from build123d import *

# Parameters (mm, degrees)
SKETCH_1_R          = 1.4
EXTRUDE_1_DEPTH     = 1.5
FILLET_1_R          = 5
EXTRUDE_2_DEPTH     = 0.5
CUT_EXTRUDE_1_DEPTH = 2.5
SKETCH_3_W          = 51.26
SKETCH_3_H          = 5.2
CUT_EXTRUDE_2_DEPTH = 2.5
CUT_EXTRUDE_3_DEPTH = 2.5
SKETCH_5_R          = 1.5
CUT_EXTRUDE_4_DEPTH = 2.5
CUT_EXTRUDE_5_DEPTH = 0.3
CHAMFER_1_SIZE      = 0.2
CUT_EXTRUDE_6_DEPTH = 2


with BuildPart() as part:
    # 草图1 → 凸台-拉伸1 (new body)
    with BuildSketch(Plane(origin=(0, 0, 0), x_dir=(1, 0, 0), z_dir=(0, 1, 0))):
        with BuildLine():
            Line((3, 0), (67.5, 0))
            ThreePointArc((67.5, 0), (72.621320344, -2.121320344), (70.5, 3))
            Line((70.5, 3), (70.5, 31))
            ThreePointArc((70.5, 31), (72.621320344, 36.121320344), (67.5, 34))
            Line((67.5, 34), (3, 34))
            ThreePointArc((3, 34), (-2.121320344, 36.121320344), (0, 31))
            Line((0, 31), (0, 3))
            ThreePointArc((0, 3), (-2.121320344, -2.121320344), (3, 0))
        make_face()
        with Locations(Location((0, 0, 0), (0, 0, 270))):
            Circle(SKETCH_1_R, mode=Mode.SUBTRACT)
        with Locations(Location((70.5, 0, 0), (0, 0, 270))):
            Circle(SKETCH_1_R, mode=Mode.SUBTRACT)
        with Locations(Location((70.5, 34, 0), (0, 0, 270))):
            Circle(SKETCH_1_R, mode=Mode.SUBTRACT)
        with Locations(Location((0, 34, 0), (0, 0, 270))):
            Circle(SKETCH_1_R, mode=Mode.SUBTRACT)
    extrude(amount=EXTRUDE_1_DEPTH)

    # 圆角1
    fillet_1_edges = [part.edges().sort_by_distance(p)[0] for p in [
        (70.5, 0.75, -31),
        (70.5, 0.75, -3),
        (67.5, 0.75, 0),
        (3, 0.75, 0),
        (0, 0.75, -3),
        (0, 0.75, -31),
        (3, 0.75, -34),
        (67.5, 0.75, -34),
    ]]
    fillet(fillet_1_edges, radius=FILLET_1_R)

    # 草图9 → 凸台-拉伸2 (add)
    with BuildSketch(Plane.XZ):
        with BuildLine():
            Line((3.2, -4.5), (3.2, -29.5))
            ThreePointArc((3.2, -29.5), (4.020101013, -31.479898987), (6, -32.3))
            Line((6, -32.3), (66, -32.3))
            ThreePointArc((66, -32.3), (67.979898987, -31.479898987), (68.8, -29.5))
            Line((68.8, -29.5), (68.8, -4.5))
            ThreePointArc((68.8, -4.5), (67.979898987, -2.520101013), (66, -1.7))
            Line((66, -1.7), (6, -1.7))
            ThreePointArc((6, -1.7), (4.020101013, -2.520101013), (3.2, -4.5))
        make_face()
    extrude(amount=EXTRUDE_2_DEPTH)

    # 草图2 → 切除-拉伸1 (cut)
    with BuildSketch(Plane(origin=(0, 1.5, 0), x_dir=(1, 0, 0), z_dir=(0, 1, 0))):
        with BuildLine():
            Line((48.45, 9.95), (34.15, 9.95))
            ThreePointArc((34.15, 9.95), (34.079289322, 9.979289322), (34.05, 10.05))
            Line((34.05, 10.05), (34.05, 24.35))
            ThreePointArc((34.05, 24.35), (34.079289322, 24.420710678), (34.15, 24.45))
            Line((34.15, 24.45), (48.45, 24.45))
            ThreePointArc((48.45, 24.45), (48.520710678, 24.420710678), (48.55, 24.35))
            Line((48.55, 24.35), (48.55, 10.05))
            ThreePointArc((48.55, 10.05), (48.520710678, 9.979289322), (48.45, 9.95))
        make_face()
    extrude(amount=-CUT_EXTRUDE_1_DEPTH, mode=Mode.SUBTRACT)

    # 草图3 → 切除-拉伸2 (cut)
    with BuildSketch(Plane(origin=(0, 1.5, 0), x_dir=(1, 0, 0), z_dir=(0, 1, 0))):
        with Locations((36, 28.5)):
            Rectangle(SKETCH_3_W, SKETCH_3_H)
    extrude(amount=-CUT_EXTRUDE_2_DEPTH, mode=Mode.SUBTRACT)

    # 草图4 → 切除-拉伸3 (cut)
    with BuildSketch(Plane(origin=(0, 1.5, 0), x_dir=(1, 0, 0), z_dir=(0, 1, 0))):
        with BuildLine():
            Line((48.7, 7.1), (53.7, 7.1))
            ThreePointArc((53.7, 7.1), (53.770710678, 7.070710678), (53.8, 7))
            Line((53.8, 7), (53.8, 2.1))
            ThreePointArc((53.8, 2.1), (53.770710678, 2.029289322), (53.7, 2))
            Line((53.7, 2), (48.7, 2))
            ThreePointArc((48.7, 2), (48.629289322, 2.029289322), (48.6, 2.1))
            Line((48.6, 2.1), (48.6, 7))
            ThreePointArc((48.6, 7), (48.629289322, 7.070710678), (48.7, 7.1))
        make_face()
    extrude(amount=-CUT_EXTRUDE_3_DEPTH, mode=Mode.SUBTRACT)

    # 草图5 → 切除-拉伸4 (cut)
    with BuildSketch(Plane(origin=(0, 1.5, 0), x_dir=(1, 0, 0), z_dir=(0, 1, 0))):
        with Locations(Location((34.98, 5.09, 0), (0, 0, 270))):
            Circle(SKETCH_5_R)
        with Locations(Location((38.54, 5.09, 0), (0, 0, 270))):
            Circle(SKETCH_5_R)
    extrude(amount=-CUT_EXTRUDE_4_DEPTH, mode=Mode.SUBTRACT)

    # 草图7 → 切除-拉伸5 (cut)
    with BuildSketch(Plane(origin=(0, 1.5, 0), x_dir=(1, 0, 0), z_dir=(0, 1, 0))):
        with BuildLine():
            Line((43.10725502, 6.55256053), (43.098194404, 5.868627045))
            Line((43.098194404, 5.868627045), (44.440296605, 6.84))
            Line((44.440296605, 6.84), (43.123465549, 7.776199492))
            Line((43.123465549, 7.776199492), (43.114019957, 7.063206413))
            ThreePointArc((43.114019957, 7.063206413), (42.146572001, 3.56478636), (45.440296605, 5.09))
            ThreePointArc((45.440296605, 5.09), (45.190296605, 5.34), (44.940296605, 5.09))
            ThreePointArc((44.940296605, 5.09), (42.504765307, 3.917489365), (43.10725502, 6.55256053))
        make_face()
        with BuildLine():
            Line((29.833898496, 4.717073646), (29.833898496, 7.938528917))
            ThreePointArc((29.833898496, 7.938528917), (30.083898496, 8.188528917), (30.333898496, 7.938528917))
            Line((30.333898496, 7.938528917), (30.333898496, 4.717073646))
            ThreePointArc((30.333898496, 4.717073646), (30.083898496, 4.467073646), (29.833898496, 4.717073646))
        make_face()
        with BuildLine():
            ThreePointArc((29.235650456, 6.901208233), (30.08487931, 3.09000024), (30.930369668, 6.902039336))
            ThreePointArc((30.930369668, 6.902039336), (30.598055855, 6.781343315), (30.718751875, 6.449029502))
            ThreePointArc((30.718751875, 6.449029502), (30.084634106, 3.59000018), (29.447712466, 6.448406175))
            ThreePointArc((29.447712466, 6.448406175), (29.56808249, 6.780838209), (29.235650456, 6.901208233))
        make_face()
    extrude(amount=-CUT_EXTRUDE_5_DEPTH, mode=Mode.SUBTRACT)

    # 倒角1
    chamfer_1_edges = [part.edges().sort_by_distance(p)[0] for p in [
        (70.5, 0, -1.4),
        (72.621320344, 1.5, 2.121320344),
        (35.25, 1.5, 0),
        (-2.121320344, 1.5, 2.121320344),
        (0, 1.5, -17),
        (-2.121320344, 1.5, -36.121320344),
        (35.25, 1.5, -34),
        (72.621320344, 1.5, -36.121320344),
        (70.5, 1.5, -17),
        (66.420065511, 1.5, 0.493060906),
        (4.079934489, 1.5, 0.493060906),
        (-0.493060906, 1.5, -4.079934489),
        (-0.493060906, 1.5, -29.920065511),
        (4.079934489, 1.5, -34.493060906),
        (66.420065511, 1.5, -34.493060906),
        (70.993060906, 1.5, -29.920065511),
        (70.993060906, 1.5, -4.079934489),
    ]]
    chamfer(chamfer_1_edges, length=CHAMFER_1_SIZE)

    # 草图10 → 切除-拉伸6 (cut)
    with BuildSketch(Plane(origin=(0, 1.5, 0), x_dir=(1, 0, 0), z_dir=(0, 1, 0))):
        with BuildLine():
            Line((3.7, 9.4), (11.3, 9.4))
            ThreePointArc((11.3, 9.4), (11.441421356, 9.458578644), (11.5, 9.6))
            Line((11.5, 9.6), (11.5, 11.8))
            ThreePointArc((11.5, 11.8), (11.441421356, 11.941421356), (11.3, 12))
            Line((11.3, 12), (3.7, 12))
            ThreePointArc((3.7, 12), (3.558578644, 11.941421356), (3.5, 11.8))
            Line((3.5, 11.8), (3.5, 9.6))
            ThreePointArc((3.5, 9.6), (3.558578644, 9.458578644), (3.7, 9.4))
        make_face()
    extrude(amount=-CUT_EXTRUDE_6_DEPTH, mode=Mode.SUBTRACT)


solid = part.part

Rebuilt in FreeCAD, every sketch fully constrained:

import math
import FreeCAD as App
import Part
import Sketcher

V = App.Vector
Q = App.Units.Quantity


def edges_at(feature, points):
    """Names of the edges that pass closest to the given points."""
    edges = feature.Shape.Edges
    near = lambda p: min(range(len(edges)), key=lambda i: edges[i].distToShape(Part.Vertex(*p))[0])
    return sorted({f"Edge{near(p) + 1}" for p in points})


def add_polygon(sketch, points):
    """Adds a closed chain of lines whose ends are joined by coincident constraints."""
    first, n = sketch.GeometryCount, len(points)
    for a, b in zip(points, points[1:] + points[:1]):
        sketch.addGeometry(Part.LineSegment(App.Vector(*a, 0), App.Vector(*b, 0)), False)
    for i in range(n):
        sketch.addConstraint(Sketcher.Constraint("Coincident", first + i, 2, first + (i + 1) % n, 1))

doc = App.newDocument("Part")
params = doc.addObject("Spreadsheet::Sheet", "Params")
for row, (alias, value) in enumerate([
    ("sketch1_radius", "3 mm"),
    ("sketch1_diameter", "2.8 mm"),
    ("sketch1_height", "28 mm"),
    ("sketch1_width", "64.5 mm"),
    ("pad1_length", "1.5 mm"),
    ("fillet_radius", "5 mm"),
    ("sketch2_radius", "2.8 mm"),
    ("sketch2_width", "60 mm"),
    ("sketch2_height", "25 mm"),
    ("pad2_length", "0.5 mm"),
    ("sketch3_radius", "0.1 mm"),
    ("sketch3_width", "14.3 mm"),
    ("pocket1_length", "2.5 mm"),
    ("sketch4_height", "5.2 mm"),
    ("sketch4_width", "51.26 mm"),
    ("pocket2_length", "2.5 mm"),
    ("sketch5_radius", "0.1 mm"),
    ("sketch5_width", "5 mm"),
    ("sketch5_height", "4.9 mm"),
    ("pocket3_length", "2.5 mm"),
    ("sketch6_diameter", "3 mm"),
    ("pocket4_length", "2.5 mm"),
    ("sketch7_radius", "2 mm"),
    ("sketch7_radius2", "2 mm"),
    ("sketch7_radius3", "1.5 mm"),
    ("sketch7_radius4", "1.5 mm"),
    ("sketch7_radius5", "0.25 mm"),
    ("pocket5_length", "0.3 mm"),
    ("chamfer_size", "0.2 mm"),
    ("sketch8_radius", "0.2 mm"),
    ("sketch8_width", "7.6 mm"),
    ("sketch8_height", "2.2 mm"),
    ("pocket6_length", "2 mm"),
], start=1):
    params.set(f"A{row}", alias)
    params.set(f"B{row}", "=" + value)
    params.setAlias(f"B{row}", alias)

body = doc.addObject("PartDesign::Body", "Body")

# Sketch on XZ plane
sketch1 = doc.addObject("Sketcher::SketchObject", "Sketch")
body.addObject(sketch1)
sketch1.AttachmentSupport = (doc.XZ_Plane, [""])
sketch1.MapMode = "FlatFace"
sketch1.addGeometry(Part.LineSegment(V(3, 0, 0), V(67.5, 0, 0)), False)
sketch1.addGeometry(Part.ArcOfCircle(Part.Circle(V(70.5, 0, 0), V(0, 0, 1), 3), math.radians(-90), math.radians(180)), False)
sketch1.addGeometry(Part.LineSegment(V(70.5, -3, 0), V(70.5, -31, 0)), False)
sketch1.addGeometry(Part.ArcOfCircle(Part.Circle(V(70.5, -34, 0), V(0, 0, 1), 3), math.radians(180), math.radians(450)), False)
sketch1.addGeometry(Part.LineSegment(V(67.5, -34, 0), V(3, -34, 0)), False)
sketch1.addGeometry(Part.ArcOfCircle(Part.Circle(V(0, -34, 0), V(0, 0, 1), 3), math.radians(90), math.radians(360)), False)
sketch1.addGeometry(Part.LineSegment(V(0, -31, 0), V(0, -3, 0)), False)
sketch1.addGeometry(Part.ArcOfCircle(Part.Circle(V(0, 0, 0), V(0, 0, 1), 3), math.radians(0), math.radians(270)), False)
sketch1.addGeometry(Part.Circle(V(0, 0, 0), V(0, 0, 1), 1.4), False)
sketch1.addGeometry(Part.Circle(V(70.5, 0, 0), V(0, 0, 1), 1.4), False)
sketch1.addGeometry(Part.Circle(V(0, -34, 0), V(0, 0, 1), 1.4), False)
sketch1.addGeometry(Part.Circle(V(70.5, -34, 0), V(0, 0, 1), 1.4), False)
sketch1.addConstraint(Sketcher.Constraint("Coincident", 0, 2, 1, 2))
sketch1.addConstraint(Sketcher.Constraint("Coincident", 1, 1, 2, 1))
sketch1.addConstraint(Sketcher.Constraint("Coincident", 2, 2, 3, 2))
sketch1.addConstraint(Sketcher.Constraint("Coincident", 3, 1, 4, 1))
sketch1.addConstraint(Sketcher.Constraint("Coincident", 4, 2, 5, 2))
sketch1.addConstraint(Sketcher.Constraint("Coincident", 5, 1, 6, 1))
sketch1.addConstraint(Sketcher.Constraint("Coincident", 6, 2, 7, 2))
sketch1.addConstraint(Sketcher.Constraint("Coincident", 7, 1, 0, 1))
sketch1.addConstraint(Sketcher.Constraint("Horizontal", 0))
sketch1.addConstraint(Sketcher.Constraint("Vertical", 2))
sketch1.addConstraint(Sketcher.Constraint("Horizontal", 4))
sketch1.addConstraint(Sketcher.Constraint("Vertical", 6))
sketch1.addConstraint(Sketcher.Constraint("Coincident", 7, 3, -1, 1))
sketch1.addConstraint(Sketcher.Constraint("Coincident", 8, 3, -1, 1))
sketch1.addConstraint(Sketcher.Constraint("Coincident", 9, 3, 1, 3))
sketch1.addConstraint(Sketcher.Constraint("Coincident", 10, 3, 5, 3))
sketch1.addConstraint(Sketcher.Constraint("Coincident", 11, 3, 3, 3))
sketch1.addConstraint(Sketcher.Constraint("Equal", 1, 3))
sketch1.addConstraint(Sketcher.Constraint("Equal", 3, 5))
sketch1.addConstraint(Sketcher.Constraint("Equal", 5, 7))
sketch1.addConstraint(Sketcher.Constraint("Equal", 8, 9))
sketch1.addConstraint(Sketcher.Constraint("Equal", 9, 10))
sketch1.addConstraint(Sketcher.Constraint("Equal", 10, 11))
sketch1.addConstraint(Sketcher.Constraint("PointOnObject", 1, 3, -1))
sketch1.addConstraint(Sketcher.Constraint("PointOnObject", 5, 3, -2))
sketch1.addConstraint(Sketcher.Constraint("PointOnObject", 0, 2, -1))
sketch1.addConstraint(Sketcher.Constraint("PointOnObject", 5, 1, -2))
sketch1.addConstraint(Sketcher.Constraint("Horizontal", 3, 3, 5, 3))
sketch1.addConstraint(Sketcher.Constraint("Horizontal", 11, 3, 3, 1))
sketch1.addConstraint(Sketcher.Constraint("Vertical", 1, 3, 3, 3))
sketch1.addConstraint(Sketcher.Constraint("Vertical", 11, 3, 1, 1))
sketch1.addConstraint(Sketcher.Constraint("Radius", 1, Q("3 mm")))
sketch1.addConstraint(Sketcher.Constraint("Diameter", 8, Q("2.8 mm")))
sketch1.addConstraint(Sketcher.Constraint("DistanceY", 2, 2, 2, 1, Q("28 mm")))
sketch1.addConstraint(Sketcher.Constraint("DistanceX", 0, 1, 0, 2, Q("64.5 mm")))
sketch1.setExpression("Constraints[31]", "Params.sketch1_radius")
sketch1.setExpression("Constraints[32]", "Params.sketch1_diameter")
sketch1.setExpression("Constraints[33]", "Params.sketch1_height")
sketch1.setExpression("Constraints[34]", "Params.sketch1_width")
pad1 = doc.addObject("PartDesign::Pad", "Pad")
body.addObject(pad1)
pad1.Profile = sketch1
pad1.setExpression("Length", "Params.pad1_length")
pad1.Reversed = True
doc.recompute()

fillet = doc.addObject("PartDesign::Fillet", "Fillet")
body.addObject(fillet)
fillet.Base = (pad1, edges_at(pad1, [
    (70.5, 0.75, -31),
    (70.5, 0.75, -3),
    (67.5, 0.75, 0),
    (3, 0.75, 0),
    (0, 0.75, -3),
    (0, 0.75, -31),
    (3, 0.75, -34),
    (67.5, 0.75, -34),
]))
fillet.setExpression("Radius", "Params.fillet_radius")

# Sketch on XZ plane
sketch2 = doc.addObject("Sketcher::SketchObject", "Sketch001")
body.addObject(sketch2)
sketch2.AttachmentSupport = (doc.XZ_Plane, [""])
sketch2.MapMode = "FlatFace"
sketch2.addGeometry(Part.LineSegment(V(3.2, -4.5, 0), V(3.2, -29.5, 0)), False)
sketch2.addGeometry(Part.ArcOfCircle(Part.Circle(V(6, -29.5, 0), V(0, 0, 1), 2.8), math.radians(-180), math.radians(-90)), False)
sketch2.addGeometry(Part.LineSegment(V(6, -32.3, 0), V(66, -32.3, 0)), False)
sketch2.addGeometry(Part.ArcOfCircle(Part.Circle(V(66, -29.5, 0), V(0, 0, 1), 2.8), math.radians(-90), math.radians(0)), False)
sketch2.addGeometry(Part.LineSegment(V(68.8, -29.5, 0), V(68.8, -4.5, 0)), False)
sketch2.addGeometry(Part.ArcOfCircle(Part.Circle(V(66, -4.5, 0), V(0, 0, 1), 2.8), math.radians(0), math.radians(90)), False)
sketch2.addGeometry(Part.LineSegment(V(66, -1.7, 0), V(6, -1.7, 0)), False)
sketch2.addGeometry(Part.ArcOfCircle(Part.Circle(V(6, -4.5, 0), V(0, 0, 1), 2.8), math.radians(90), math.radians(180)), False)
sketch2.addConstraint(Sketcher.Constraint("Tangent", 0, 2, 1, 1))
sketch2.addConstraint(Sketcher.Constraint("Tangent", 1, 2, 2, 1))
sketch2.addConstraint(Sketcher.Constraint("Tangent", 2, 2, 3, 1))
sketch2.addConstraint(Sketcher.Constraint("Tangent", 3, 2, 4, 1))
sketch2.addConstraint(Sketcher.Constraint("Tangent", 4, 2, 5, 1))
sketch2.addConstraint(Sketcher.Constraint("Tangent", 5, 2, 6, 1))
sketch2.addConstraint(Sketcher.Constraint("Tangent", 6, 2, 7, 1))
sketch2.addConstraint(Sketcher.Constraint("Tangent", 7, 2, 0, 1))
sketch2.addConstraint(Sketcher.Constraint("Vertical", 0))
sketch2.addConstraint(Sketcher.Constraint("Horizontal", 2))
sketch2.addConstraint(Sketcher.Constraint("Vertical", 4))
sketch2.addConstraint(Sketcher.Constraint("Horizontal", 6))
sketch2.addConstraint(Sketcher.Constraint("Equal", 1, 3))
sketch2.addConstraint(Sketcher.Constraint("Equal", 3, 5))
sketch2.addConstraint(Sketcher.Constraint("Equal", 5, 7))
sketch2.addConstraint(Sketcher.Constraint("Radius", 1, Q("2.8 mm")))
sketch2.addConstraint(Sketcher.Constraint("DistanceX", 2, 1, 2, 2, Q("60 mm")))
sketch2.addConstraint(Sketcher.Constraint("DistanceY", 0, 2, 0, 1, Q("25 mm")))
sketch2.addConstraint(Sketcher.Constraint("DistanceX", -1, 1, 1, 3, Q("6 mm")))
sketch2.addConstraint(Sketcher.Constraint("DistanceY", 1, 3, -1, 1, Q("29.5 mm")))
sketch2.setExpression("Constraints[15]", "Params.sketch2_radius")
sketch2.setExpression("Constraints[16]", "Params.sketch2_width")
sketch2.setExpression("Constraints[17]", "Params.sketch2_height")
pad2 = doc.addObject("PartDesign::Pad", "Pad001")
body.addObject(pad2)
pad2.Profile = sketch2
pad2.setExpression("Length", "Params.pad2_length")

# Sketch on XZ plane
sketch3 = doc.addObject("Sketcher::SketchObject", "Sketch002")
body.addObject(sketch3)
sketch3.AttachmentSupport = (doc.XZ_Plane, [""])
sketch3.MapMode = "FlatFace"
sketch3.AttachmentOffset = App.Placement(V(0, 0, -1.5), App.Rotation())
sketch3.addGeometry(Part.LineSegment(V(34.15, -9.95, 0), V(48.45, -9.95, 0)), False)
sketch3.addGeometry(Part.ArcOfCircle(Part.Circle(V(48.45, -10.05, 0), V(0, 0, 1), 0.1), math.radians(0), math.radians(90)), False)
sketch3.addGeometry(Part.LineSegment(V(48.55, -10.05, 0), V(48.55, -24.35, 0)), False)
sketch3.addGeometry(Part.ArcOfCircle(Part.Circle(V(48.45, -24.35, 0), V(0, 0, 1), 0.1), math.radians(-90), math.radians(0)), False)
sketch3.addGeometry(Part.LineSegment(V(48.45, -24.45, 0), V(34.15, -24.45, 0)), False)
sketch3.addGeometry(Part.ArcOfCircle(Part.Circle(V(34.15, -24.35, 0), V(0, 0, 1), 0.1), math.radians(180), math.radians(270)), False)
sketch3.addGeometry(Part.LineSegment(V(34.05, -24.35, 0), V(34.05, -10.05, 0)), False)
sketch3.addGeometry(Part.ArcOfCircle(Part.Circle(V(34.15, -10.05, 0), V(0, 0, 1), 0.1), math.radians(90), math.radians(180)), False)
sketch3.addConstraint(Sketcher.Constraint("Tangent", 0, 2, 1, 2))
sketch3.addConstraint(Sketcher.Constraint("Tangent", 1, 1, 2, 1))
sketch3.addConstraint(Sketcher.Constraint("Tangent", 2, 2, 3, 2))
sketch3.addConstraint(Sketcher.Constraint("Tangent", 3, 1, 4, 1))
sketch3.addConstraint(Sketcher.Constraint("Tangent", 4, 2, 5, 2))
sketch3.addConstraint(Sketcher.Constraint("Tangent", 5, 1, 6, 1))
sketch3.addConstraint(Sketcher.Constraint("Tangent", 6, 2, 7, 2))
sketch3.addConstraint(Sketcher.Constraint("Tangent", 7, 1, 0, 1))
sketch3.addConstraint(Sketcher.Constraint("Horizontal", 0))
sketch3.addConstraint(Sketcher.Constraint("Vertical", 2))
sketch3.addConstraint(Sketcher.Constraint("Horizontal", 4))
sketch3.addConstraint(Sketcher.Constraint("Vertical", 6))
sketch3.addConstraint(Sketcher.Constraint("Equal", 1, 3))
sketch3.addConstraint(Sketcher.Constraint("Equal", 3, 5))
sketch3.addConstraint(Sketcher.Constraint("Equal", 5, 7))
sketch3.addConstraint(Sketcher.Constraint("Equal", 4, 2))
sketch3.addConstraint(Sketcher.Constraint("Radius", 1, Q("0.1 mm")))
sketch3.addConstraint(Sketcher.Constraint("DistanceX", 0, 1, 0, 2, Q("14.3 mm")))
sketch3.addConstraint(Sketcher.Constraint("DistanceX", -1, 1, 1, 3, Q("48.45 mm")))
sketch3.addConstraint(Sketcher.Constraint("DistanceY", 1, 3, -1, 1, Q("10.05 mm")))
sketch3.setExpression("Constraints[16]", "Params.sketch3_radius")
sketch3.setExpression("Constraints[17]", "Params.sketch3_width")
pocket1 = doc.addObject("PartDesign::Pocket", "Pocket")
body.addObject(pocket1)
pocket1.Profile = sketch3
pocket1.setExpression("Length", "Params.pocket1_length")
pocket1.Reversed = True

# Sketch on XZ plane
sketch4 = doc.addObject("Sketcher::SketchObject", "Sketch003")
body.addObject(sketch4)
sketch4.AttachmentSupport = (doc.XZ_Plane, [""])
sketch4.MapMode = "FlatFace"
sketch4.AttachmentOffset = App.Placement(V(0, 0, -1.5), App.Rotation())
add_polygon(sketch4, [(10, -31), (10, -26), (62, -26), (62, -31)])  # lines 0-3
sketch4.addConstraint(Sketcher.Constraint("Vertical", 0))
sketch4.addConstraint(Sketcher.Constraint("Horizontal", 1))
sketch4.addConstraint(Sketcher.Constraint("Vertical", 2))
sketch4.addConstraint(Sketcher.Constraint("Horizontal", 3))
sketch4.addConstraint(Sketcher.Constraint("DistanceY", 0, 1, 0, 2, Q("5.2 mm")))
sketch4.addConstraint(Sketcher.Constraint("DistanceX", 1, 1, 1, 2, Q("51.26 mm")))
sketch4.addConstraint(Sketcher.Constraint("DistanceY", 0, 2, -1, 1, Q("25.9 mm")))
sketch4.addConstraint(Sketcher.Constraint("DistanceX", -1, 1, 0, 2, Q("10.37 mm")))
sketch4.setExpression("Constraints[8]", "Params.sketch4_height")
sketch4.setExpression("Constraints[9]", "Params.sketch4_width")
pocket2 = doc.addObject("PartDesign::Pocket", "Pocket001")
body.addObject(pocket2)
pocket2.Profile = sketch4
pocket2.setExpression("Length", "Params.pocket2_length")
pocket2.Reversed = True

# Sketch on XZ plane
sketch5 = doc.addObject("Sketcher::SketchObject", "Sketch004")
body.addObject(sketch5)
sketch5.AttachmentSupport = (doc.XZ_Plane, [""])
sketch5.MapMode = "FlatFace"
sketch5.AttachmentOffset = App.Placement(V(0, 0, -1.5), App.Rotation())
sketch5.addGeometry(Part.LineSegment(V(53.7, -7.1, 0), V(48.7, -7.1, 0)), False)
sketch5.addGeometry(Part.ArcOfCircle(Part.Circle(V(48.7, -7, 0), V(0, 0, 1), 0.1), math.radians(180), math.radians(270)), False)
sketch5.addGeometry(Part.LineSegment(V(48.6, -7, 0), V(48.6, -2.1, 0)), False)
sketch5.addGeometry(Part.ArcOfCircle(Part.Circle(V(48.7, -2.1, 0), V(0, 0, 1), 0.1), math.radians(90), math.radians(180)), False)
sketch5.addGeometry(Part.LineSegment(V(48.7, -2, 0), V(53.7, -2, 0)), False)
sketch5.addGeometry(Part.ArcOfCircle(Part.Circle(V(53.7, -2.1, 0), V(0, 0, 1), 0.1), math.radians(0), math.radians(90)), False)
sketch5.addGeometry(Part.LineSegment(V(53.8, -2.1, 0), V(53.8, -7, 0)), False)
sketch5.addGeometry(Part.ArcOfCircle(Part.Circle(V(53.7, -7, 0), V(0, 0, 1), 0.1), math.radians(-90), math.radians(0)), False)
sketch5.addConstraint(Sketcher.Constraint("Tangent", 0, 2, 1, 2))
sketch5.addConstraint(Sketcher.Constraint("Tangent", 1, 1, 2, 1))
sketch5.addConstraint(Sketcher.Constraint("Tangent", 2, 2, 3, 2))
sketch5.addConstraint(Sketcher.Constraint("Tangent", 3, 1, 4, 1))
sketch5.addConstraint(Sketcher.Constraint("Tangent", 4, 2, 5, 2))
sketch5.addConstraint(Sketcher.Constraint("Tangent", 5, 1, 6, 1))
sketch5.addConstraint(Sketcher.Constraint("Tangent", 6, 2, 7, 2))
sketch5.addConstraint(Sketcher.Constraint("Tangent", 7, 1, 0, 1))
sketch5.addConstraint(Sketcher.Constraint("Horizontal", 0))
sketch5.addConstraint(Sketcher.Constraint("Vertical", 2))
sketch5.addConstraint(Sketcher.Constraint("Horizontal", 4))
sketch5.addConstraint(Sketcher.Constraint("Vertical", 6))
sketch5.addConstraint(Sketcher.Constraint("Equal", 1, 3))
sketch5.addConstraint(Sketcher.Constraint("Equal", 3, 5))
sketch5.addConstraint(Sketcher.Constraint("Equal", 5, 7))
sketch5.addConstraint(Sketcher.Constraint("Radius", 1, Q("0.1 mm")))
sketch5.addConstraint(Sketcher.Constraint("DistanceX", 0, 2, 0, 1, Q("5 mm")))
sketch5.addConstraint(Sketcher.Constraint("DistanceY", 2, 1, 2, 2, Q("4.9 mm")))
sketch5.addConstraint(Sketcher.Constraint("DistanceY", 1, 3, -1, 1, Q("7 mm")))
sketch5.addConstraint(Sketcher.Constraint("DistanceX", -1, 1, 1, 3, Q("48.7 mm")))
sketch5.setExpression("Constraints[15]", "Params.sketch5_radius")
sketch5.setExpression("Constraints[16]", "Params.sketch5_width")
sketch5.setExpression("Constraints[17]", "Params.sketch5_height")
pocket3 = doc.addObject("PartDesign::Pocket", "Pocket002")
body.addObject(pocket3)
pocket3.Profile = sketch5
pocket3.setExpression("Length", "Params.pocket3_length")
pocket3.Reversed = True

# Sketch on XZ plane
sketch6 = doc.addObject("Sketcher::SketchObject", "Sketch005")
body.addObject(sketch6)
sketch6.AttachmentSupport = (doc.XZ_Plane, [""])
sketch6.MapMode = "FlatFace"
sketch6.AttachmentOffset = App.Placement(V(0, 0, -1.5), App.Rotation())
sketch6.addGeometry(Part.Circle(V(35, -5.1, 0), V(0, 0, 1), 1.5), False)
sketch6.addGeometry(Part.Circle(V(38.5, -5.1, 0), V(0, 0, 1), 1.5), False)
sketch6.addConstraint(Sketcher.Constraint("Equal", 0, 1))
sketch6.addConstraint(Sketcher.Constraint("Horizontal", 0, 3, 1, 3))
sketch6.addConstraint(Sketcher.Constraint("Diameter", 0, Q("3 mm")))
sketch6.addConstraint(Sketcher.Constraint("DistanceX", -1, 1, 0, 3, Q("34.98 mm")))
sketch6.addConstraint(Sketcher.Constraint("DistanceY", 0, 3, -1, 1, Q("5.09 mm")))
sketch6.addConstraint(Sketcher.Constraint("DistanceX", -1, 1, 1, 3, Q("38.54 mm")))
sketch6.setExpression("Constraints[2]", "Params.sketch6_diameter")
pocket4 = doc.addObject("PartDesign::Pocket", "Pocket003")
body.addObject(pocket4)
pocket4.Profile = sketch6
pocket4.setExpression("Length", "Params.pocket4_length")
pocket4.Reversed = True

# Sketch on XZ plane
sketch7 = doc.addObject("Sketcher::SketchObject", "Sketch006")
body.addObject(sketch7)
sketch7.AttachmentSupport = (doc.XZ_Plane, [""])
sketch7.MapMode = "FlatFace"
sketch7.AttachmentOffset = App.Placement(V(0, 0, -1.5), App.Rotation())
sketch7.addGeometry(Part.LineSegment(V(43.107255, -6.552561, 0), V(43.098194, -5.868627, 0)), False)
sketch7.addGeometry(Part.LineSegment(V(43.098194, -5.868627, 0), V(44.440297, -6.84, 0)), False)
sketch7.addGeometry(Part.LineSegment(V(44.440297, -6.84, 0), V(43.123466, -7.776199, 0)), False)
sketch7.addGeometry(Part.LineSegment(V(43.123466, -7.776199, 0), V(43.11402, -7.063206, 0)), False)
sketch7.addGeometry(Part.ArcOfCircle(Part.Circle(V(43.440297, -5.09, 0), V(0, 0, 1), 2), math.radians(0), math.radians(260.610897)), False)
sketch7.addGeometry(Part.ArcOfCircle(Part.Circle(V(45.190297, -5.09, 0), V(0, 0, 1), 0.25), math.radians(180), math.radians(360)), False)
sketch7.addGeometry(Part.ArcOfCircle(Part.Circle(V(43.440297, -5.09, 0), V(0, 0, 1), 1.5), math.radians(0), math.radians(257.171841)), False)
sketch7.addGeometry(Part.LineSegment(V(29.833898, -7.938529, 0), V(29.833898, -4.717074, 0)), False)
sketch7.addGeometry(Part.ArcOfCircle(Part.Circle(V(30.083898, -4.717074, 0), V(0, 0, 1), 0.25), math.radians(0), math.radians(180)), False)
sketch7.addGeometry(Part.LineSegment(V(30.333898, -4.717074, 0), V(30.333898, -7.938529, 0)), False)
sketch7.addGeometry(Part.ArcOfCircle(Part.Circle(V(30.083898, -7.938529, 0), V(0, 0, 1), 0.25), math.radians(180), math.radians(360)), False)
sketch7.addGeometry(Part.ArcOfCircle(Part.Circle(V(30.083898, -5.09, 0), V(0, 0, 1), 2), math.radians(-64.960967), math.radians(244.904771)), False)
sketch7.addGeometry(Part.ArcOfCircle(Part.Circle(V(30.824561, -6.675534, 0), V(0, 0, 1), 0.25), math.radians(115.039033), math.radians(295.039033)), False)
sketch7.addGeometry(Part.ArcOfCircle(Part.Circle(V(30.083898, -5.09, 0), V(0, 0, 1), 1.5), math.radians(-64.960967), math.radians(244.904771)), False)
sketch7.addGeometry(Part.ArcOfCircle(Part.Circle(V(29.341681, -6.674807, 0), V(0, 0, 1), 0.25), math.radians(-115.095229), math.radians(64.904771)), False)
sketch7.addConstraint(Sketcher.Constraint("Coincident", 0, 2, 1, 1))
sketch7.addConstraint(Sketcher.Constraint("Coincident", 1, 2, 2, 1))
sketch7.addConstraint(Sketcher.Constraint("Coincident", 2, 2, 3, 1))
sketch7.addConstraint(Sketcher.Constraint("Coincident", 3, 2, 4, 2))
sketch7.addConstraint(Sketcher.Constraint("Coincident", 4, 1, 5, 2))
sketch7.addConstraint(Sketcher.Constraint("Coincident", 5, 1, 6, 1))
sketch7.addConstraint(Sketcher.Constraint("Coincident", 6, 2, 0, 1))
sketch7.addConstraint(Sketcher.Constraint("Coincident", 7, 2, 8, 2))
sketch7.addConstraint(Sketcher.Constraint("Coincident", 8, 1, 9, 1))
sketch7.addConstraint(Sketcher.Constraint("Coincident", 9, 2, 10, 2))
sketch7.addConstraint(Sketcher.Constraint("Coincident", 10, 1, 7, 1))
sketch7.addConstraint(Sketcher.Constraint("Coincident", 11, 1, 12, 2))
sketch7.addConstraint(Sketcher.Constraint("Coincident", 12, 1, 13, 1))
sketch7.addConstraint(Sketcher.Constraint("Coincident", 13, 2, 14, 2))
sketch7.addConstraint(Sketcher.Constraint("Coincident", 14, 1, 11, 2))
sketch7.addConstraint(Sketcher.Constraint("Vertical", 7))
sketch7.addConstraint(Sketcher.Constraint("Vertical", 9))
sketch7.addConstraint(Sketcher.Constraint("Coincident", 6, 3, 4, 3))
sketch7.addConstraint(Sketcher.Constraint("Coincident", 13, 3, 11, 3))
sketch7.addConstraint(Sketcher.Constraint("Radius", 4, Q("2 mm")))
sketch7.addConstraint(Sketcher.Constraint("Radius", 11, Q("2 mm")))
sketch7.addConstraint(Sketcher.Constraint("Radius", 6, Q("1.5 mm")))
sketch7.addConstraint(Sketcher.Constraint("Radius", 13, Q("1.5 mm")))
sketch7.addConstraint(Sketcher.Constraint("Radius", 8, Q("0.25 mm")))
sketch7.addConstraint(Sketcher.Constraint("DistanceX", 4, 3, 1, 2, Q("1 mm")))
sketch7.addConstraint(Sketcher.Constraint("DistanceY", 4, 3, -1, 1, Q("5.09 mm")))
sketch7.addConstraint(Sketcher.Constraint("DistanceY", 5, 3, -1, 1, Q("5.09 mm")))
sketch7.addConstraint(Sketcher.Constraint("DistanceY", 11, 3, -1, 1, Q("5.09 mm")))
sketch7.addConstraint(Sketcher.Constraint("DistanceY", 1, 2, -1, 1, Q("6.84 mm")))
sketch7.addConstraint(Sketcher.Constraint("DistanceY", 4, 1, -1, 1, Q("5.09 mm")))
sketch7.addConstraint(Sketcher.Constraint("DistanceY", 5, 1, -1, 1, Q("5.09 mm")))
sketch7.addConstraint(Sketcher.Constraint("DistanceX", 7, 2, 11, 3, Q("0.25 mm")))
sketch7.addConstraint(Sketcher.Constraint("DistanceX", -1, 1, 8, 3, Q("30.083898 mm")))
sketch7.addConstraint(Sketcher.Constraint("DistanceY", 2, 2, -1, 1, Q("7.776199 mm")))
sketch7.addConstraint(Sketcher.Constraint("DistanceX", 8, 3, 4, 3, Q("13.356398 mm")))
sketch7.addConstraint(Sketcher.Constraint("DistanceY", 14, 3, 13, 2, Q("0.226401 mm")))
sketch7.addConstraint(Sketcher.Constraint("DistanceY", 14, 1, 14, 3, Q("0.226401 mm")))
sketch7.addConstraint(Sketcher.Constraint("Distance", 2, Q("1.615708 mm")))
sketch7.addConstraint(Sketcher.Constraint("DistanceY", 7, 1, 7, 2, Q("3.221455 mm")))
sketch7.addConstraint(Sketcher.Constraint("DistanceY", 9, 2, 9, 1, Q("3.221455 mm")))
sketch7.addConstraint(Sketcher.Constraint("DistanceY", 10, 3, -1, 1, Q("7.938529 mm")))
sketch7.addConstraint(Sketcher.Constraint("DistanceX", -1, 1, 12, 3, Q("30.824561 mm")))
sketch7.addConstraint(Sketcher.Constraint("DistanceX", -1, 1, 14, 3, Q("29.341681 mm")))
sketch7.addConstraint(Sketcher.Constraint("DistanceX", -1, 1, 3, 2, Q("43.11402 mm")))
sketch7.addConstraint(Sketcher.Constraint("DistanceY", 6, 2, -1, 1, Q("6.552561 mm")))
sketch7.addConstraint(Sketcher.Constraint("DistanceY", 9, 2, -1, 1, Q("7.938529 mm")))
sketch7.addConstraint(Sketcher.Constraint("DistanceY", 10, 1, -1, 1, Q("7.938529 mm")))
sketch7.addConstraint(Sketcher.Constraint("DistanceX", -1, 1, 11, 1, Q("30.93037 mm")))
sketch7.addConstraint(Sketcher.Constraint("DistanceX", -1, 1, 12, 1, Q("30.718752 mm")))
sketch7.addConstraint(Sketcher.Constraint("DistanceY", 12, 3, 8, 3, Q("1.958461 mm")))
sketch7.addConstraint(Sketcher.Constraint("DistanceX", 0, 2, 2, 2, Q("0.025271 mm")))
sketch7.addConstraint(Sketcher.Constraint("DistanceY", 3, 2, 0, 2, Q("1.194579 mm")))
sketch7.setExpression("Constraints[19]", "Params.sketch7_radius")
sketch7.setExpression("Constraints[20]", "Params.sketch7_radius2")
sketch7.setExpression("Constraints[21]", "Params.sketch7_radius3")
sketch7.setExpression("Constraints[22]", "Params.sketch7_radius4")
sketch7.setExpression("Constraints[23]", "Params.sketch7_radius5")
pocket5 = doc.addObject("PartDesign::Pocket", "Pocket004")
body.addObject(pocket5)
pocket5.Profile = sketch7
pocket5.setExpression("Length", "Params.pocket5_length")
pocket5.Reversed = True
doc.recompute()

chamfer = doc.addObject("PartDesign::Chamfer", "Chamfer")
body.addObject(chamfer)
chamfer.Base = (pocket5, edges_at(pocket5, [
    (70.5, 0, -1.4),
    (72.621, 1.5, 2.121),
    (35.25, 1.5, 0),
    (-2.121, 1.5, 2.121),
    (0, 1.5, -17),
    (-2.121, 1.5, -36.121),
    (35.25, 1.5, -34),
    (72.621, 1.5, -36.121),
    (70.5, 1.5, -17),
    (66.42, 1.5, 0.493),
    (4.08, 1.5, 0.493),
    (-0.493, 1.5, -4.08),
    (-0.493, 1.5, -29.92),
    (4.08, 1.5, -34.493),
    (66.42, 1.5, -34.493),
    (70.993, 1.5, -29.92),
    (70.993, 1.5, -4.08),
]))
chamfer.setExpression("Size", "Params.chamfer_size")

# Sketch on XZ plane
sketch8 = doc.addObject("Sketcher::SketchObject", "Sketch007")
body.addObject(sketch8)
sketch8.AttachmentSupport = (doc.XZ_Plane, [""])
sketch8.MapMode = "FlatFace"
sketch8.AttachmentOffset = App.Placement(V(0, 0, -1.5), App.Rotation())
sketch8.addGeometry(Part.LineSegment(V(3.7, -9.4, 0), V(11.3, -9.4, 0)), False)
sketch8.addGeometry(Part.ArcOfCircle(Part.Circle(V(11.3, -9.6, 0), V(0, 0, 1), 0.2), math.radians(0), math.radians(90)), False)
sketch8.addGeometry(Part.LineSegment(V(11.5, -9.6, 0), V(11.5, -11.8, 0)), False)
sketch8.addGeometry(Part.ArcOfCircle(Part.Circle(V(11.3, -11.8, 0), V(0, 0, 1), 0.2), math.radians(-90), math.radians(0)), False)
sketch8.addGeometry(Part.LineSegment(V(11.3, -12, 0), V(3.7, -12, 0)), False)
sketch8.addGeometry(Part.ArcOfCircle(Part.Circle(V(3.7, -11.8, 0), V(0, 0, 1), 0.2), math.radians(-180), math.radians(-90)), False)
sketch8.addGeometry(Part.LineSegment(V(3.5, -11.8, 0), V(3.5, -9.6, 0)), False)
sketch8.addGeometry(Part.ArcOfCircle(Part.Circle(V(3.7, -9.6, 0), V(0, 0, 1), 0.2), math.radians(90), math.radians(180)), False)
sketch8.addConstraint(Sketcher.Constraint("Tangent", 0, 2, 1, 2))
sketch8.addConstraint(Sketcher.Constraint("Tangent", 1, 1, 2, 1))
sketch8.addConstraint(Sketcher.Constraint("Tangent", 2, 2, 3, 2))
sketch8.addConstraint(Sketcher.Constraint("Tangent", 3, 1, 4, 1))
sketch8.addConstraint(Sketcher.Constraint("Tangent", 4, 2, 5, 2))
sketch8.addConstraint(Sketcher.Constraint("Tangent", 5, 1, 6, 1))
sketch8.addConstraint(Sketcher.Constraint("Tangent", 6, 2, 7, 2))
sketch8.addConstraint(Sketcher.Constraint("Tangent", 7, 1, 0, 1))
sketch8.addConstraint(Sketcher.Constraint("Horizontal", 0))
sketch8.addConstraint(Sketcher.Constraint("Vertical", 2))
sketch8.addConstraint(Sketcher.Constraint("Horizontal", 4))
sketch8.addConstraint(Sketcher.Constraint("Vertical", 6))
sketch8.addConstraint(Sketcher.Constraint("Equal", 1, 3))
sketch8.addConstraint(Sketcher.Constraint("Equal", 3, 5))
sketch8.addConstraint(Sketcher.Constraint("Equal", 5, 7))
sketch8.addConstraint(Sketcher.Constraint("Radius", 1, Q("0.2 mm")))
sketch8.addConstraint(Sketcher.Constraint("DistanceX", 0, 1, 0, 2, Q("7.6 mm")))
sketch8.addConstraint(Sketcher.Constraint("DistanceY", 2, 2, 2, 1, Q("2.2 mm")))
sketch8.addConstraint(Sketcher.Constraint("DistanceY", 3, 1, -1, 1, Q("12 mm")))
sketch8.addConstraint(Sketcher.Constraint("DistanceX", -1, 1, 1, 3, Q("11.3 mm")))
sketch8.setExpression("Constraints[15]", "Params.sketch8_radius")
sketch8.setExpression("Constraints[16]", "Params.sketch8_width")
sketch8.setExpression("Constraints[17]", "Params.sketch8_height")
pocket6 = doc.addObject("PartDesign::Pocket", "Pocket005")
body.addObject(pocket6)
pocket6.Profile = sketch8
pocket6.setExpression("Length", "Params.pocket6_length")
pocket6.Reversed = True

doc.recompute()
